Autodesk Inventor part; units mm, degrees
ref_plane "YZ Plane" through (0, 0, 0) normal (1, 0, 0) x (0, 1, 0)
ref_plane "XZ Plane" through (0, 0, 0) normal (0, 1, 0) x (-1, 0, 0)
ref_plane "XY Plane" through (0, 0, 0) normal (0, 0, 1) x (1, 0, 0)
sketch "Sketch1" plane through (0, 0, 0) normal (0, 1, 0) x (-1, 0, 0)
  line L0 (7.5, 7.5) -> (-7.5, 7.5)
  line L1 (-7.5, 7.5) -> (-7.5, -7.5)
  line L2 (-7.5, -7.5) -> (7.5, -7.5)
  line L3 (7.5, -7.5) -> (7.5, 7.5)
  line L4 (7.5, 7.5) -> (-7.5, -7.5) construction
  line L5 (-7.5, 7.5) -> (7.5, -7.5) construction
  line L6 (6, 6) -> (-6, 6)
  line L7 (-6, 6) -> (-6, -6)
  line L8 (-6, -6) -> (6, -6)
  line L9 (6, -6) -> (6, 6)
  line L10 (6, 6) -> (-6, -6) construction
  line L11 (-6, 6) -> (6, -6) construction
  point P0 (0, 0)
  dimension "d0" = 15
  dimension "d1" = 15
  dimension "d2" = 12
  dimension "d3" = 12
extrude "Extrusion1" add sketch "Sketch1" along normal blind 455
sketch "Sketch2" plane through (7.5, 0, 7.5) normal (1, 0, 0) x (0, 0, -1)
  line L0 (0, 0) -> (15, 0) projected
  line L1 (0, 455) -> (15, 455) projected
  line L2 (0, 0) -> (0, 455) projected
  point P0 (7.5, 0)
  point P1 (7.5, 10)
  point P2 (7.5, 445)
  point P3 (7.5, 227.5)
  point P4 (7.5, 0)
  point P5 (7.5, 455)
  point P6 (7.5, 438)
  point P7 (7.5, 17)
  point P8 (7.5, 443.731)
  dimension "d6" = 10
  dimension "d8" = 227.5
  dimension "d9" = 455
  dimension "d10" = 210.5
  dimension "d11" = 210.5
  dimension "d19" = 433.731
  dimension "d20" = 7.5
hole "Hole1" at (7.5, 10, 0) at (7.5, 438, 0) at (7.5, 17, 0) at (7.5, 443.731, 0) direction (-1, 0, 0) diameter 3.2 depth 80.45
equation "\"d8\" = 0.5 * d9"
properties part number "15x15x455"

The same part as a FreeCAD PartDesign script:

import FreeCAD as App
import Part
import Sketcher

V = App.Vector

doc = App.newDocument("Part")
body = doc.addObject("PartDesign::Body", "Body")

sketch1 = body.newObject("Sketcher::SketchObject", "Sketch")
sketch1.AttachmentSupport = (doc.getObject("XZ_Plane"), [""])
sketch1.MapMode = "FlatFace"
sketch1.addGeometry([
    Part.LineSegment(V(-8, -8, 0), V(-8, 8, 0)),
    Part.LineSegment(V(-8, 8, 0), V(8, 8, 0)),
    Part.LineSegment(V(8, 8, 0), V(8, -8, 0)),
    Part.LineSegment(V(8, -8, 0), V(-8, -8, 0)),
    Part.LineSegment(V(6, 6, 0), V(-6, 6, 0)),
    Part.LineSegment(V(-6, 6, 0), V(-6, -6, 0)),
    Part.LineSegment(V(-6, -6, 0), V(6, -6, 0)),
    Part.LineSegment(V(6, -6, 0), V(6, 6, 0)),
], False)
sketch1.addConstraint([
    Sketcher.Constraint("Coincident", 0, 2, 1, 1),
    Sketcher.Constraint("Coincident", 1, 2, 2, 1),
    Sketcher.Constraint("Coincident", 2, 2, 3, 1),
    Sketcher.Constraint("Coincident", 3, 2, 0, 1),
    Sketcher.Constraint("Coincident", 4, 2, 5, 1),
    Sketcher.Constraint("Coincident", 5, 2, 6, 1),
    Sketcher.Constraint("Coincident", 6, 2, 7, 1),
    Sketcher.Constraint("Coincident", 7, 2, 4, 1),
    Sketcher.Constraint("Vertical", 0),
    Sketcher.Constraint("Horizontal", 1),
    Sketcher.Constraint("Vertical", 2),
    Sketcher.Constraint("Horizontal", 3),
    Sketcher.Constraint("Horizontal", 4),
    Sketcher.Constraint("Vertical", 5),
    Sketcher.Constraint("Horizontal", 6),
    Sketcher.Constraint("Vertical", 7),
    Sketcher.Constraint("Symmetric", 0, 2, 2, 2, -1, 1),
    Sketcher.Constraint("Symmetric", 4, 2, 6, 2, -1, 1),
    Sketcher.Constraint("Equal", 3, 0),
    Sketcher.Constraint("Equal", 6, 5),
    Sketcher.Constraint("DistanceX", 1, 1, 1, 2, 15.0),
    Sketcher.Constraint("DistanceX", 4, 2, 4, 1, 12.0),
])
pad1 = body.newObject("PartDesign::Pad", "Pad")
pad1.Profile = sketch1
pad1.Length = 455
pad1.Reversed = True

sketch2 = body.newObject("Sketcher::SketchObject", "Sketch001")
sketch2.AttachmentSupport = (doc.getObject("YZ_Plane"), [""])
sketch2.MapMode = "FlatFace"
sketch2.AttachmentOffset = App.Placement(V(0, 0, 7.5), App.Rotation())
sketch2.addGeometry([
    Part.Circle(V(10, 0, 0), V(0, 0, 1), 1.6),
    Part.Circle(V(438, 0, 0), V(0, 0, 1), 1.6),
    Part.Circle(V(17, 0, 0), V(0, 0, 1), 1.6),
    Part.Circle(V(443.7, 0, 0), V(0, 0, 1), 1.6),
], False)
sketch2.addConstraint([
    Sketcher.Constraint("Equal", 0, 1),
    Sketcher.Constraint("Equal", 1, 2),
    Sketcher.Constraint("Equal", 2, 3),
    Sketcher.Constraint("PointOnObject", 0, 3, -1),
    Sketcher.Constraint("PointOnObject", 1, 3, -1),
    Sketcher.Constraint("PointOnObject", 2, 3, -1),
    Sketcher.Constraint("PointOnObject", 3, 3, -1),
    Sketcher.Constraint("Diameter", 0, 3.2),
    Sketcher.Constraint("DistanceX", -1, 1, 0, 3, 10.0),
    Sketcher.Constraint("DistanceX", -1, 1, 1, 3, 438.0),
    Sketcher.Constraint("DistanceX", -1, 1, 2, 3, 17.0),
    Sketcher.Constraint("DistanceX", -1, 1, 3, 3, 443.731),
])
doc.recompute()
hole = body.newObject("PartDesign::Hole", "Hole")
hole.Profile = sketch2
hole.ThreadType = "None"
hole.Diameter = 3.2
hole.DepthType = "Dimension"
hole.Depth = 80.45
hole.DrillPoint = "Flat"

doc.recompute()
